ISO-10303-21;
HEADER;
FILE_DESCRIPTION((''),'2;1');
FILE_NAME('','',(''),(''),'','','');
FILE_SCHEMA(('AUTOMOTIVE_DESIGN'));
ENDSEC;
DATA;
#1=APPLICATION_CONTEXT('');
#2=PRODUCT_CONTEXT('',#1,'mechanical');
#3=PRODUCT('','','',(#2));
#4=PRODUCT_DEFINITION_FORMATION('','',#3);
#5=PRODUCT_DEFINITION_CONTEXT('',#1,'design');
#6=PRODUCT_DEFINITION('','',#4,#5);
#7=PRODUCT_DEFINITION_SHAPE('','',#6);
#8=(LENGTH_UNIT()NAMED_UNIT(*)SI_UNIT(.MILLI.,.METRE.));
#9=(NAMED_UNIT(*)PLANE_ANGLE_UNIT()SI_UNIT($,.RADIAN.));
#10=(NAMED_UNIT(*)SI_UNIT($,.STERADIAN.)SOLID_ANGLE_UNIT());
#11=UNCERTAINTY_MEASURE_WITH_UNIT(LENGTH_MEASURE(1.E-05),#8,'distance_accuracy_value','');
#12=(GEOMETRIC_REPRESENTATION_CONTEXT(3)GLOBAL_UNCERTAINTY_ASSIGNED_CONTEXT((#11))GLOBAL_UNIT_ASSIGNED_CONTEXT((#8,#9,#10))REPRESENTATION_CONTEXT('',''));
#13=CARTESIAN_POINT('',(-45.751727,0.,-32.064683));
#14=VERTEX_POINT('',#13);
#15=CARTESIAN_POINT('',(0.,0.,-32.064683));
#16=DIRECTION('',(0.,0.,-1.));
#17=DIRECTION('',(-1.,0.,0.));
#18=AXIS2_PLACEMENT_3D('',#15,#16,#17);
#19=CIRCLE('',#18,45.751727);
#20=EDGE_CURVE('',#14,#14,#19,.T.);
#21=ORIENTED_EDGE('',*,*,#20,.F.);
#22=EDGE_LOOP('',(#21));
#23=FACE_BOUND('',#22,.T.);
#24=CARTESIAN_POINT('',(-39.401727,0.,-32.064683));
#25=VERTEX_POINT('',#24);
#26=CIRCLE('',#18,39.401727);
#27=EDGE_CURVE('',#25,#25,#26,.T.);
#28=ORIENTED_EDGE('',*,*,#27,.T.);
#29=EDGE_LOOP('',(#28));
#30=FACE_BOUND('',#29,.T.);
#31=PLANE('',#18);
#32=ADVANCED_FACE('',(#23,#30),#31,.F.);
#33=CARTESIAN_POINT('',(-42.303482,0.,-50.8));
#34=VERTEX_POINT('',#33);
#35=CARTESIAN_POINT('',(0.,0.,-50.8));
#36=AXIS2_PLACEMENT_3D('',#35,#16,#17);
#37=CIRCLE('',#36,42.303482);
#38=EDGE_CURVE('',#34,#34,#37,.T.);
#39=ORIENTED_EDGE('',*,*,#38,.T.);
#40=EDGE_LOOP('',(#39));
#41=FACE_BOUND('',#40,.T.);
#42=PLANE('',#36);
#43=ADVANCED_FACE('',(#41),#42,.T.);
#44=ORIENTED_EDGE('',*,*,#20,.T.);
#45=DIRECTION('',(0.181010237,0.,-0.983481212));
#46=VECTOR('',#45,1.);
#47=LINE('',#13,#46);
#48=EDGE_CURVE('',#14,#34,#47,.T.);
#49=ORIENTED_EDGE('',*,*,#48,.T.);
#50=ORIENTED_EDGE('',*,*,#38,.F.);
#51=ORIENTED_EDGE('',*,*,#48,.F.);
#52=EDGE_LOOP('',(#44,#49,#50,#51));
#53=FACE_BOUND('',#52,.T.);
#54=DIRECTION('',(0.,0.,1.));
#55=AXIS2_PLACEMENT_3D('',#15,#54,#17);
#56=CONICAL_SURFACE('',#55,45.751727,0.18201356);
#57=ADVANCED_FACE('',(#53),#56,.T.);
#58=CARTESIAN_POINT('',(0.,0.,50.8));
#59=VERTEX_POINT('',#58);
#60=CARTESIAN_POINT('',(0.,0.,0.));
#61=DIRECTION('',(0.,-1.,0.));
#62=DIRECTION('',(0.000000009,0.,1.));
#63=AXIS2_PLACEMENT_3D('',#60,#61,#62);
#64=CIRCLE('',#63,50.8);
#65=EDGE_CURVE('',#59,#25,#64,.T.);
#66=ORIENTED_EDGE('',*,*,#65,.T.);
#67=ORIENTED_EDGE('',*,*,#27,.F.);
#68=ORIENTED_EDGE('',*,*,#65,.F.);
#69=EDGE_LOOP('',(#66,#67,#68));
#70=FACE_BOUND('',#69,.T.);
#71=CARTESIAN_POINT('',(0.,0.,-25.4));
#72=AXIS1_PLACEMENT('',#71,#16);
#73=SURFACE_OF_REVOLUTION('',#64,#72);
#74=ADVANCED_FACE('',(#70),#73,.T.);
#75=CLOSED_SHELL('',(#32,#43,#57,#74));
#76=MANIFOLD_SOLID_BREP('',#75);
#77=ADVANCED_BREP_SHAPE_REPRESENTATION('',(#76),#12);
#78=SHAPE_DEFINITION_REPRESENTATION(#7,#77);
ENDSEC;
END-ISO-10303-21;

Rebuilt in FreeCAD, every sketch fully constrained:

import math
import FreeCAD as App
import Part
import Sketcher

V = App.Vector
Q = App.Units.Quantity

doc = App.newDocument("Part")
params = doc.addObject("Spreadsheet::Sheet", "Params")
for row, (alias, value) in enumerate([
    ("sketch1_radius", "2 in"),
    ("sketch1_width", "0.25 in"),
    ("sketch1_length", "0.75 in"),
    ("revolution_angle", "360 deg"),
], start=1):
    params.set(f"A{row}", alias)
    params.set(f"B{row}", "=" + value)
    params.setAlias(f"B{row}", alias)

body = doc.addObject("PartDesign::Body", "Body")

sketch1 = doc.addObject("Sketcher::SketchObject", "Sketch")
body.addObject(sketch1)
sketch1.AttachmentSupport = (doc.XZ_Plane, [""])
sketch1.MapMode = "FlatFace"
sketch1.addGeometry(Part.ArcOfCircle(Part.Circle(V(0, 0, 0), V(0, 0, 1), 50.8), math.radians(89.999999), math.radians(219.13831)), False)
sketch1.addGeometry(Part.LineSegment(V(-39.401727, -32.064683, 0), V(-45.751727, -32.064683, 0)), False)
sketch1.addGeometry(Part.LineSegment(V(-45.751727, -32.064683, 0), V(-42.303482, -50.8, 0)), False)
sketch1.addGeometry(Part.LineSegment(V(-42.303482, -50.8, 0), V(0, -50.8, 0)), False)
sketch1.addGeometry(Part.LineSegment(V(0, -50.8, 0), V(0, 50.8, 0)), False)
sketch1.addConstraint(Sketcher.Constraint("Coincident", 0, 2, 1, 1))
sketch1.addConstraint(Sketcher.Constraint("Coincident", 1, 2, 2, 1))
sketch1.addConstraint(Sketcher.Constraint("Coincident", 2, 2, 3, 1))
sketch1.addConstraint(Sketcher.Constraint("Coincident", 3, 2, 4, 1))
sketch1.addConstraint(Sketcher.Constraint("Coincident", 4, 2, 0, 1))
sketch1.addConstraint(Sketcher.Constraint("Horizontal", 1))
sketch1.addConstraint(Sketcher.Constraint("Horizontal", 3))
sketch1.addConstraint(Sketcher.Constraint("Vertical", 4))
sketch1.addConstraint(Sketcher.Constraint("Coincident", 0, 3, -1, 1))
sketch1.addConstraint(Sketcher.Constraint("Symmetric", 3, 2, 4, 2, -1, 1))
sketch1.addConstraint(Sketcher.Constraint("Radius", 0, Q("2 in")))
sketch1.addConstraint(Sketcher.Constraint("DistanceX", 1, 2, 1, 1, Q("0.25 in")))
sketch1.addConstraint(Sketcher.Constraint("Distance", 2, Q("0.75 in")))
sketch1.addConstraint(Sketcher.Constraint("DistanceX", 3, 1, 3, 2, Q("42.303482 mm")))
sketch1.setExpression("Constraints[10]", "Params.sketch1_radius")
sketch1.setExpression("Constraints[11]", "Params.sketch1_width")
sketch1.setExpression("Constraints[12]", "Params.sketch1_length")
revolution = doc.addObject("PartDesign::Revolution", "Revolution")
body.addObject(revolution)
revolution.Profile = sketch1
revolution.ReferenceAxis = (sketch1, ["V_Axis"])
revolution.setExpression("Angle", "Params.revolution_angle")

doc.recompute()
